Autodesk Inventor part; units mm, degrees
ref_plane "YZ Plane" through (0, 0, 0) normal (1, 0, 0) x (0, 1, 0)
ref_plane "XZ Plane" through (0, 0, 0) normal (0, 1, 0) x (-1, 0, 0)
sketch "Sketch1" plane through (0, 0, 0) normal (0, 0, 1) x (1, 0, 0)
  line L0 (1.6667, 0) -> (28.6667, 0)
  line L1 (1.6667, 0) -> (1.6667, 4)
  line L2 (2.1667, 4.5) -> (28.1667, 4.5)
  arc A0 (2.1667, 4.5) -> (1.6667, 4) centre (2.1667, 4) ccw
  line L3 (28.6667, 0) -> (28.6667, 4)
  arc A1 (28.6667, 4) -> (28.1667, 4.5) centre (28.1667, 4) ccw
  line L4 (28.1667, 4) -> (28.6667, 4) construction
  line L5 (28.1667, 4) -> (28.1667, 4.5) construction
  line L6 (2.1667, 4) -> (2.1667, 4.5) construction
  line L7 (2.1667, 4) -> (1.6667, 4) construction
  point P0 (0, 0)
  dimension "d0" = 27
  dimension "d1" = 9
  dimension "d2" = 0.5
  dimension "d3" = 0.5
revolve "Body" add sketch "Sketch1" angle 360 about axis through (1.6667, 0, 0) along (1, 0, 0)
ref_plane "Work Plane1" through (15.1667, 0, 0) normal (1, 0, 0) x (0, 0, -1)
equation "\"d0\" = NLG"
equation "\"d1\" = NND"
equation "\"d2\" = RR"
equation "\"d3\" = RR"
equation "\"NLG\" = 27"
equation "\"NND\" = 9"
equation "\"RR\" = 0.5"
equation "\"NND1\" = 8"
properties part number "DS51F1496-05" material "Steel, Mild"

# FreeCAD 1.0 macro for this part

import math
import FreeCAD as App
import Part
import Sketcher

V = App.Vector
Q = App.Units.Quantity

doc = App.newDocument("Part")
body = doc.addObject("PartDesign::Body", "Body")

# Sketch on XY plane
sketch1 = doc.addObject("Sketcher::SketchObject", "Sketch")
body.addObject(sketch1)
sketch1.AttachmentSupport = (doc.XY_Plane, [""])
sketch1.MapMode = "FlatFace"
sketch1.addGeometry([
    Part.LineSegment(V(1.7, 4, 0), V(1.7, 0, 0)),  # 0
    Part.LineSegment(V(1.7, 0, 0), V(28.7, 0, 0)),  # 1
    Part.LineSegment(V(28.7, 0, 0), V(28.7, 4, 0)),  # 2
    Part.ArcOfCircle(Part.Circle(V(28.2, 4, 0), V(0, 0, 1), 0.5), math.radians(0), math.radians(90)),  # 3
    Part.LineSegment(V(28.2, 4.5, 0), V(2.2, 4.5, 0)),  # 4
    Part.ArcOfCircle(Part.Circle(V(2.2, 4, 0), V(0, 0, 1), 0.5), math.radians(90), math.radians(180)),  # 5
], False)
sketch1.addConstraint([
    Sketcher.Constraint("Coincident", 0, 2, 1, 1),
    Sketcher.Constraint("Coincident", 1, 2, 2, 1),
    Sketcher.Constraint("Tangent", 2, 2, 3, 1),
    Sketcher.Constraint("Tangent", 3, 2, 4, 1),
    Sketcher.Constraint("Tangent", 4, 2, 5, 1),
    Sketcher.Constraint("Tangent", 5, 2, 0, 1),
    Sketcher.Constraint("Vertical", 0),
    Sketcher.Constraint("Horizontal", 1),
    Sketcher.Constraint("Vertical", 2),
    Sketcher.Constraint("Horizontal", 4),
    Sketcher.Constraint("Equal", 3, 5),
    Sketcher.Constraint("PointOnObject", 0, 2, -1),
    Sketcher.Constraint("Radius", 3, Q("0.5 mm")),
    Sketcher.Constraint("DistanceX", 1, 1, 1, 2, Q("27 mm")),
    Sketcher.Constraint("DistanceY", 0, 2, 0, 1, Q("4 mm")),
    Sketcher.Constraint("DistanceX", -1, 1, 3, 3, Q("28.1667 mm")),
])
revolution = doc.addObject("PartDesign::Revolution", "Revolution")
body.addObject(revolution)
revolution.Profile = sketch1
revolution.ReferenceAxis = (sketch1, ["H_Axis"])
revolution.Angle = 360

doc.recompute()
